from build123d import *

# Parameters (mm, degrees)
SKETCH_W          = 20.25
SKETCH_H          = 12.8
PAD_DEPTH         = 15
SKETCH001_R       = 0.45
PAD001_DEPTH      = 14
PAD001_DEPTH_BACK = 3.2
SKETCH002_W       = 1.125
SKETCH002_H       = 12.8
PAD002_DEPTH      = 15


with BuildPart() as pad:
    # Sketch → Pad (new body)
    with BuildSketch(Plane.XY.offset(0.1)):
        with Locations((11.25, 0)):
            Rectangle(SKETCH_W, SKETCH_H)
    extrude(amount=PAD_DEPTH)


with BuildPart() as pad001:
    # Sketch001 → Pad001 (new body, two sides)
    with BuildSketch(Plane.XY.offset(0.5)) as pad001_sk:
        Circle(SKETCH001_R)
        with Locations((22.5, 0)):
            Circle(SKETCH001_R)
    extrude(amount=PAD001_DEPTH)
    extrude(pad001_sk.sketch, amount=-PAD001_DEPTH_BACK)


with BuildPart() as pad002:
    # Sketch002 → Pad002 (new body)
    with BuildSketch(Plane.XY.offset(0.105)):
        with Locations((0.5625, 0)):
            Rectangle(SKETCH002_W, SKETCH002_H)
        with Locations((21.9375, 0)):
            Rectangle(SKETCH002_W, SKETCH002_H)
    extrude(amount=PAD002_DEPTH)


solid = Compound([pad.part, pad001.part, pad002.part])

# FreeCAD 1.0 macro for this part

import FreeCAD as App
import Part
import Sketcher
Q = App.Units.Quantity

doc = App.newDocument("Part")
body = doc.addObject("PartDesign::Body", "Body")

sketch1 = body.newObject("Sketcher::SketchObject", "Sketch")
sketch1.AttachmentSupport = (doc.getObject("XY_Plane"), [""])
sketch1.MapMode = "FlatFace"
sketch1.AttachmentOffset = App.Placement(App.Vector(0, 0, 0.1), App.Rotation())
sketch1.addGeometry(Part.LineSegment(App.Vector(1, 6, 0), App.Vector(1, -6, 0)), False)
sketch1.addGeometry(Part.LineSegment(App.Vector(1, -6, 0), App.Vector(21, -6, 0)), False)
sketch1.addGeometry(Part.LineSegment(App.Vector(21, -6, 0), App.Vector(21, 6, 0)), False)
sketch1.addGeometry(Part.LineSegment(App.Vector(21, 6, 0), App.Vector(1, 6, 0)), False)
sketch1.addConstraint(Sketcher.Constraint("Coincident", 0, 2, 1, 1))
sketch1.addConstraint(Sketcher.Constraint("Coincident", 1, 2, 2, 1))
sketch1.addConstraint(Sketcher.Constraint("Coincident", 2, 2, 3, 1))
sketch1.addConstraint(Sketcher.Constraint("Coincident", 3, 2, 0, 1))
sketch1.addConstraint(Sketcher.Constraint("Vertical", 0))
sketch1.addConstraint(Sketcher.Constraint("Horizontal", 1))
sketch1.addConstraint(Sketcher.Constraint("Vertical", 2))
sketch1.addConstraint(Sketcher.Constraint("Horizontal", 3))
sketch1.addConstraint(Sketcher.Constraint("DistanceY", 0, 2, 0, 1, Q("12.8 mm")))
sketch1.addConstraint(Sketcher.Constraint("DistanceX", 1, 1, 1, 2, Q("20.25 mm")))
sketch1.addConstraint(Sketcher.Constraint("DistanceY", 0, 2, -1, 1, Q("6.4 mm")))
sketch1.addConstraint(Sketcher.Constraint("DistanceX", -1, 1, 0, 2, Q("1.125 mm")))
pad1 = body.newObject("PartDesign::Pad", "Pad")
pad1.Profile = sketch1
pad1.Length = 15
body2 = doc.addObject("PartDesign::Body", "Body001")
body2.AllowCompound = True

sketch2 = body2.newObject("Sketcher::SketchObject", "Sketch001")
sketch2.AttachmentSupport = (doc.getObject("XY_Plane001"), [""])
sketch2.MapMode = "FlatFace"
sketch2.AttachmentOffset = App.Placement(App.Vector(0, 0, 0.5), App.Rotation())
sketch2.addGeometry(Part.Circle(App.Vector(0, 0, 0), App.Vector(0, 0, 1), 0.45), False)
sketch2.addGeometry(Part.Circle(App.Vector(22.5, 0, 0), App.Vector(0, 0, 1), 0.45), False)
sketch2.addConstraint(Sketcher.Constraint("Coincident", 0, 3, -1, 1))
sketch2.addConstraint(Sketcher.Constraint("Equal", 0, 1))
sketch2.addConstraint(Sketcher.Constraint("PointOnObject", 1, 3, -1))
sketch2.addConstraint(Sketcher.Constraint("Diameter", 0, Q("0.9 mm")))
sketch2.addConstraint(Sketcher.Constraint("DistanceX", -1, 1, 1, 3, Q("22.5 mm")))
pad2 = body2.newObject("PartDesign::Pad", "Pad001")
pad2.Profile = sketch2
pad2.Type = "TwoLengths"
pad2.Length = 14
pad2.Length2 = 3.2
body3 = doc.addObject("PartDesign::Body", "Body002")
body3.AllowCompound = True

sketch3 = body3.newObject("Sketcher::SketchObject", "Sketch002")
sketch3.AttachmentSupport = (doc.getObject("XY_Plane002"), [""])
sketch3.MapMode = "FlatFace"
sketch3.AttachmentOffset = App.Placement(App.Vector(0, 0, 0.105), App.Rotation())
sketch3.addGeometry(Part.LineSegment(App.Vector(0, 6.4, 0), App.Vector(0, -6.4, 0)), False)
sketch3.addGeometry(Part.LineSegment(App.Vector(0, -6.4, 0), App.Vector(1.1, -6.4, 0)), False)
sketch3.addGeometry(Part.LineSegment(App.Vector(1.1, -6.4, 0), App.Vector(1.1, 6.4, 0)), False)
sketch3.addGeometry(Part.LineSegment(App.Vector(1.1, 6.4, 0), App.Vector(0, 6.4, 0)), False)
sketch3.addGeometry(Part.LineSegment(App.Vector(21.4, 6.4, 0), App.Vector(21.4, -6.4, 0)), False)
sketch3.addGeometry(Part.LineSegment(App.Vector(21.4, -6.4, 0), App.Vector(22.5, -6.4, 0)), False)
sketch3.addGeometry(Part.LineSegment(App.Vector(22.5, -6.4, 0), App.Vector(22.5, 6.4, 0)), False)
sketch3.addGeometry(Part.LineSegment(App.Vector(22.5, 6.4, 0), App.Vector(21.4, 6.4, 0)), False)
sketch3.addConstraint(Sketcher.Constraint("Coincident", 0, 2, 1, 1))
sketch3.addConstraint(Sketcher.Constraint("Coincident", 1, 2, 2, 1))
sketch3.addConstraint(Sketcher.Constraint("Coincident", 2, 2, 3, 1))
sketch3.addConstraint(Sketcher.Constraint("Coincident", 3, 2, 0, 1))
sketch3.addConstraint(Sketcher.Constraint("Coincident", 4, 2, 5, 1))
sketch3.addConstraint(Sketcher.Constraint("Coincident", 5, 2, 6, 1))
sketch3.addConstraint(Sketcher.Constraint("Coincident", 6, 2, 7, 1))
sketch3.addConstraint(Sketcher.Constraint("Coincident", 7, 2, 4, 1))
sketch3.addConstraint(Sketcher.Constraint("Vertical", 0))
sketch3.addConstraint(Sketcher.Constraint("Horizontal", 1))
sketch3.addConstraint(Sketcher.Constraint("Vertical", 2))
sketch3.addConstraint(Sketcher.Constraint("Horizontal", 3))
sketch3.addConstraint(Sketcher.Constraint("Vertical", 4))
sketch3.addConstraint(Sketcher.Constraint("Horizontal", 5))
sketch3.addConstraint(Sketcher.Constraint("Vertical", 6))
sketch3.addConstraint(Sketcher.Constraint("Horizontal", 7))
sketch3.addConstraint(Sketcher.Constraint("Symmetric", 0, 2, 3, 2, -1, 1))
sketch3.addConstraint(Sketcher.Constraint("Horizontal", 1, 2, 4, 2))
sketch3.addConstraint(Sketcher.Constraint("Horizontal", 3, 2, 6, 2))
sketch3.addConstraint(Sketcher.Constraint("Equal", 3, 5))
sketch3.addConstraint(Sketcher.Constraint("DistanceY", 0, 2, 0, 1, Q("12.8 mm")))
sketch3.addConstraint(Sketcher.Constraint("DistanceX", -1, 1, 5, 2, Q("22.5 mm")))
sketch3.addConstraint(Sketcher.Constraint("DistanceX", 1, 1, 1, 2, Q("1.125 mm")))
pad3 = body3.newObject("PartDesign::Pad", "Pad002")
pad3.Profile = sketch3
pad3.Length = 15

doc.recompute()
